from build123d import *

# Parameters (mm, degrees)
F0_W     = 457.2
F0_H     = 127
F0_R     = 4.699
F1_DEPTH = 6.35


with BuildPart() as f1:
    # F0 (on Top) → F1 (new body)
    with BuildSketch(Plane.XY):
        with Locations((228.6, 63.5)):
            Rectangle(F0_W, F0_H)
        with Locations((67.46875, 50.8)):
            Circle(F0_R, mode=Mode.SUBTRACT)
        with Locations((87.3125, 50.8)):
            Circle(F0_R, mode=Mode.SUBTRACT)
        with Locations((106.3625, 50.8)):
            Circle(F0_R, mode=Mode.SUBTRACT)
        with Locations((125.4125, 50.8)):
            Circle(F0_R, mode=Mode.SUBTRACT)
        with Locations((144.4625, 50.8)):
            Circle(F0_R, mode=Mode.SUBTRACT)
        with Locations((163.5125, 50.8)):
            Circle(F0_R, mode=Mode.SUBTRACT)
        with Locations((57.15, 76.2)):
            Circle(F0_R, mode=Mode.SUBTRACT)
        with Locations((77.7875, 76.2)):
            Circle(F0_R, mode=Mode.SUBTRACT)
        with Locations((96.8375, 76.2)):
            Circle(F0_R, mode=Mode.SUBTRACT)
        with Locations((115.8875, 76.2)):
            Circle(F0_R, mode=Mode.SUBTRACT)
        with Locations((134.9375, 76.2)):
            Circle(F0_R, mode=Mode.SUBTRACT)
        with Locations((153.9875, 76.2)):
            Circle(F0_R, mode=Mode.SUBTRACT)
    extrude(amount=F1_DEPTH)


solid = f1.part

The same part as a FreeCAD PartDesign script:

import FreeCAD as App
import Part
import Sketcher
from FreeCAD import Vector
Q = App.Units.Quantity


def add_polygon(sketch, points):
    """Adds a closed chain of lines whose ends are joined by coincident constraints."""
    first, n = sketch.GeometryCount, len(points)
    for a, b in zip(points, points[1:] + points[:1]):
        sketch.addGeometry(Part.LineSegment(App.Vector(*a, 0), App.Vector(*b, 0)), False)
    for i in range(n):
        sketch.addConstraint(Sketcher.Constraint("Coincident", first + i, 2, first + (i + 1) % n, 1))

doc = App.newDocument("Part")
body = doc.addObject("PartDesign::Body", "Body")

sketch1 = body.newObject("Sketcher::SketchObject", "Sketch")
sketch1.AttachmentSupport = (doc.getObject("XY_Plane"), [""])
sketch1.MapMode = "FlatFace"
add_polygon(sketch1, [(0, 127), (0, 0), (457.2, 0), (457.2, 127)])
sketch1.addGeometry(Part.Circle(Vector(67.5, 50.8, 0), Vector(0, 0, 1), 4.7), False)
sketch1.addGeometry(Part.Circle(Vector(87.3, 50.8, 0), Vector(0, 0, 1), 4.7), False)
sketch1.addGeometry(Part.Circle(Vector(106.4, 50.8, 0), Vector(0, 0, 1), 4.7), False)
sketch1.addGeometry(Part.Circle(Vector(125.4, 50.8, 0), Vector(0, 0, 1), 4.7), False)
sketch1.addGeometry(Part.Circle(Vector(144.5, 50.8, 0), Vector(0, 0, 1), 4.7), False)
sketch1.addGeometry(Part.Circle(Vector(163.5, 50.8, 0), Vector(0, 0, 1), 4.7), False)
sketch1.addGeometry(Part.Circle(Vector(57.1, 76.2, 0), Vector(0, 0, 1), 4.7), False)
sketch1.addGeometry(Part.Circle(Vector(77.8, 76.2, 0), Vector(0, 0, 1), 4.7), False)
sketch1.addGeometry(Part.Circle(Vector(96.8, 76.2, 0), Vector(0, 0, 1), 4.7), False)
sketch1.addGeometry(Part.Circle(Vector(115.9, 76.2, 0), Vector(0, 0, 1), 4.7), False)
sketch1.addGeometry(Part.Circle(Vector(134.9, 76.2, 0), Vector(0, 0, 1), 4.7), False)
sketch1.addGeometry(Part.Circle(Vector(154, 76.2, 0), Vector(0, 0, 1), 4.7), False)
sketch1.addConstraint([
    Sketcher.Constraint("Vertical", 0),
    Sketcher.Constraint("Horizontal", 1),
    Sketcher.Constraint("Vertical", 2),
    Sketcher.Constraint("Horizontal", 3),
    Sketcher.Constraint("Coincident", 0, 2, -1, 1),
    Sketcher.Constraint("Equal", 4, 5),
    Sketcher.Constraint("Equal", 5, 6),
    Sketcher.Constraint("Equal", 6, 7),
    Sketcher.Constraint("Equal", 7, 8),
    Sketcher.Constraint("Equal", 8, 9),
    Sketcher.Constraint("Equal", 9, 10),
    Sketcher.Constraint("Equal", 10, 11),
    Sketcher.Constraint("Equal", 11, 12),
    Sketcher.Constraint("Equal", 12, 13),
    Sketcher.Constraint("Equal", 13, 14),
    Sketcher.Constraint("Equal", 14, 15),
    Sketcher.Constraint("Horizontal", 4, 3, 5, 3),
    Sketcher.Constraint("Horizontal", 5, 3, 6, 3),
    Sketcher.Constraint("Horizontal", 6, 3, 7, 3),
    Sketcher.Constraint("Horizontal", 7, 3, 8, 3),
    Sketcher.Constraint("Horizontal", 8, 3, 9, 3),
    Sketcher.Constraint("Horizontal", 10, 3, 11, 3),
    Sketcher.Constraint("Horizontal", 11, 3, 12, 3),
    Sketcher.Constraint("Horizontal", 12, 3, 13, 3),
    Sketcher.Constraint("Horizontal", 13, 3, 14, 3),
    Sketcher.Constraint("Horizontal", 14, 3, 15, 3),
    Sketcher.Constraint("Diameter", 4, Q("0.37 in")),
    Sketcher.Constraint("DistanceX", 1, 1, 1, 2, Q("18 in")),
    Sketcher.Constraint("DistanceY", 0, 2, 0, 1, Q("5 in")),
    Sketcher.Constraint("DistanceY", -1, 1, 4, 3, Q("2 in")),
    Sketcher.Constraint("DistanceY", -1, 1, 10, 3, Q("3 in")),
    Sketcher.Constraint("DistanceX", 5, 3, 9, 3, Q("3 in")),
    Sketcher.Constraint("DistanceX", 5, 3, 7, 3, Q("1.5 in")),
    Sketcher.Constraint("DistanceX", 6, 3, 8, 3, Q("1.5 in")),
    Sketcher.Constraint("DistanceX", 11, 3, 13, 3, Q("1.5 in")),
    Sketcher.Constraint("DistanceX", 12, 3, 14, 3, Q("1.5 in")),
    Sketcher.Constraint("DistanceX", 13, 3, 15, 3, Q("1.5 in")),
    Sketcher.Constraint("DistanceX", -1, 1, 10, 3, Q("2.25 in")),
    Sketcher.Constraint("DistanceX", 5, 3, 6, 3, Q("0.75 in")),
    Sketcher.Constraint("DistanceX", 11, 3, 12, 3, Q("0.75 in")),
    Sketcher.Constraint("DistanceX", -1, 1, 4, 3, Q("2.65625 in")),
    Sketcher.Constraint("DistanceX", -1, 1, 5, 3, Q("3.4375 in")),
    Sketcher.Constraint("DistanceX", -1, 1, 11, 3, Q("3.0625 in")),
])
pad1 = body.newObject("PartDesign::Pad", "Pad")
pad1.Profile = sketch1
pad1.Length = Q("0.25 in")

doc.recompute()
